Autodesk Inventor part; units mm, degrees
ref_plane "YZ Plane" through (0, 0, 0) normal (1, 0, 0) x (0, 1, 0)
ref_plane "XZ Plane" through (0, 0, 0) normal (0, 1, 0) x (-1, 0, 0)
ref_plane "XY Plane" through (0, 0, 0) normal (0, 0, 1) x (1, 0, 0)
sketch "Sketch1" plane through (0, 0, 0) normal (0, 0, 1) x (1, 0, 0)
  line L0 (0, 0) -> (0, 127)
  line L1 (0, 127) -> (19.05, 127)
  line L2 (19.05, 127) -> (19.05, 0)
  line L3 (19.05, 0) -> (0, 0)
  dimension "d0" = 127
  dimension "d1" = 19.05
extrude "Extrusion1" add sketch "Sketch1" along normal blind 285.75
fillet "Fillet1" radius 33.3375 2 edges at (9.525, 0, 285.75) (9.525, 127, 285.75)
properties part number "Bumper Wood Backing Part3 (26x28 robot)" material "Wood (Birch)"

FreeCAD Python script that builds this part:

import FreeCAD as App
import Part
import Sketcher

V = App.Vector
Q = App.Units.Quantity


def edges_at(feature, points):
    """Names of the edges that pass closest to the given points."""
    edges = feature.Shape.Edges
    near = lambda p: min(range(len(edges)), key=lambda i: edges[i].distToShape(Part.Vertex(*p))[0])
    return sorted({f"Edge{near(p) + 1}" for p in points})


def add_polygon(sketch, points):
    """Adds a closed chain of lines whose ends are joined by coincident constraints."""
    first, n = sketch.GeometryCount, len(points)
    for a, b in zip(points, points[1:] + points[:1]):
        sketch.addGeometry(Part.LineSegment(App.Vector(*a, 0), App.Vector(*b, 0)), False)
    for i in range(n):
        sketch.addConstraint(Sketcher.Constraint("Coincident", first + i, 2, first + (i + 1) % n, 1))

doc = App.newDocument("Part")
body = doc.addObject("PartDesign::Body", "Body")

# Sketch on XY plane
sketch1 = doc.addObject("Sketcher::SketchObject", "Sketch")
body.addObject(sketch1)
sketch1.AttachmentSupport = (doc.XY_Plane, [""])
sketch1.MapMode = "FlatFace"
add_polygon(sketch1, [(0, 127), (0, 0), (19, 0), (19, 127)])  # lines 0-3
sketch1.addConstraint([
    Sketcher.Constraint("Vertical", 0),
    Sketcher.Constraint("Horizontal", 1),
    Sketcher.Constraint("Vertical", 2),
    Sketcher.Constraint("Horizontal", 3),
    Sketcher.Constraint("Coincident", 0, 2, -1, 1),
    Sketcher.Constraint("DistanceY", 0, 2, 0, 1, Q("5 in")),
    Sketcher.Constraint("DistanceX", 1, 1, 1, 2, Q("0.75 in")),
])
pad1 = doc.addObject("PartDesign::Pad", "Pad")
body.addObject(pad1)
pad1.Profile = sketch1
pad1.Length = Q("11.25 in")
doc.recompute()

fillet = doc.addObject("PartDesign::Fillet", "Fillet")
body.addObject(fillet)
fillet.Base = (pad1, edges_at(pad1, [(9.525, 0, 285.75), (9.525, 127, 285.75)]))
fillet.Radius = Q("1.3125 in")

doc.recompute()
